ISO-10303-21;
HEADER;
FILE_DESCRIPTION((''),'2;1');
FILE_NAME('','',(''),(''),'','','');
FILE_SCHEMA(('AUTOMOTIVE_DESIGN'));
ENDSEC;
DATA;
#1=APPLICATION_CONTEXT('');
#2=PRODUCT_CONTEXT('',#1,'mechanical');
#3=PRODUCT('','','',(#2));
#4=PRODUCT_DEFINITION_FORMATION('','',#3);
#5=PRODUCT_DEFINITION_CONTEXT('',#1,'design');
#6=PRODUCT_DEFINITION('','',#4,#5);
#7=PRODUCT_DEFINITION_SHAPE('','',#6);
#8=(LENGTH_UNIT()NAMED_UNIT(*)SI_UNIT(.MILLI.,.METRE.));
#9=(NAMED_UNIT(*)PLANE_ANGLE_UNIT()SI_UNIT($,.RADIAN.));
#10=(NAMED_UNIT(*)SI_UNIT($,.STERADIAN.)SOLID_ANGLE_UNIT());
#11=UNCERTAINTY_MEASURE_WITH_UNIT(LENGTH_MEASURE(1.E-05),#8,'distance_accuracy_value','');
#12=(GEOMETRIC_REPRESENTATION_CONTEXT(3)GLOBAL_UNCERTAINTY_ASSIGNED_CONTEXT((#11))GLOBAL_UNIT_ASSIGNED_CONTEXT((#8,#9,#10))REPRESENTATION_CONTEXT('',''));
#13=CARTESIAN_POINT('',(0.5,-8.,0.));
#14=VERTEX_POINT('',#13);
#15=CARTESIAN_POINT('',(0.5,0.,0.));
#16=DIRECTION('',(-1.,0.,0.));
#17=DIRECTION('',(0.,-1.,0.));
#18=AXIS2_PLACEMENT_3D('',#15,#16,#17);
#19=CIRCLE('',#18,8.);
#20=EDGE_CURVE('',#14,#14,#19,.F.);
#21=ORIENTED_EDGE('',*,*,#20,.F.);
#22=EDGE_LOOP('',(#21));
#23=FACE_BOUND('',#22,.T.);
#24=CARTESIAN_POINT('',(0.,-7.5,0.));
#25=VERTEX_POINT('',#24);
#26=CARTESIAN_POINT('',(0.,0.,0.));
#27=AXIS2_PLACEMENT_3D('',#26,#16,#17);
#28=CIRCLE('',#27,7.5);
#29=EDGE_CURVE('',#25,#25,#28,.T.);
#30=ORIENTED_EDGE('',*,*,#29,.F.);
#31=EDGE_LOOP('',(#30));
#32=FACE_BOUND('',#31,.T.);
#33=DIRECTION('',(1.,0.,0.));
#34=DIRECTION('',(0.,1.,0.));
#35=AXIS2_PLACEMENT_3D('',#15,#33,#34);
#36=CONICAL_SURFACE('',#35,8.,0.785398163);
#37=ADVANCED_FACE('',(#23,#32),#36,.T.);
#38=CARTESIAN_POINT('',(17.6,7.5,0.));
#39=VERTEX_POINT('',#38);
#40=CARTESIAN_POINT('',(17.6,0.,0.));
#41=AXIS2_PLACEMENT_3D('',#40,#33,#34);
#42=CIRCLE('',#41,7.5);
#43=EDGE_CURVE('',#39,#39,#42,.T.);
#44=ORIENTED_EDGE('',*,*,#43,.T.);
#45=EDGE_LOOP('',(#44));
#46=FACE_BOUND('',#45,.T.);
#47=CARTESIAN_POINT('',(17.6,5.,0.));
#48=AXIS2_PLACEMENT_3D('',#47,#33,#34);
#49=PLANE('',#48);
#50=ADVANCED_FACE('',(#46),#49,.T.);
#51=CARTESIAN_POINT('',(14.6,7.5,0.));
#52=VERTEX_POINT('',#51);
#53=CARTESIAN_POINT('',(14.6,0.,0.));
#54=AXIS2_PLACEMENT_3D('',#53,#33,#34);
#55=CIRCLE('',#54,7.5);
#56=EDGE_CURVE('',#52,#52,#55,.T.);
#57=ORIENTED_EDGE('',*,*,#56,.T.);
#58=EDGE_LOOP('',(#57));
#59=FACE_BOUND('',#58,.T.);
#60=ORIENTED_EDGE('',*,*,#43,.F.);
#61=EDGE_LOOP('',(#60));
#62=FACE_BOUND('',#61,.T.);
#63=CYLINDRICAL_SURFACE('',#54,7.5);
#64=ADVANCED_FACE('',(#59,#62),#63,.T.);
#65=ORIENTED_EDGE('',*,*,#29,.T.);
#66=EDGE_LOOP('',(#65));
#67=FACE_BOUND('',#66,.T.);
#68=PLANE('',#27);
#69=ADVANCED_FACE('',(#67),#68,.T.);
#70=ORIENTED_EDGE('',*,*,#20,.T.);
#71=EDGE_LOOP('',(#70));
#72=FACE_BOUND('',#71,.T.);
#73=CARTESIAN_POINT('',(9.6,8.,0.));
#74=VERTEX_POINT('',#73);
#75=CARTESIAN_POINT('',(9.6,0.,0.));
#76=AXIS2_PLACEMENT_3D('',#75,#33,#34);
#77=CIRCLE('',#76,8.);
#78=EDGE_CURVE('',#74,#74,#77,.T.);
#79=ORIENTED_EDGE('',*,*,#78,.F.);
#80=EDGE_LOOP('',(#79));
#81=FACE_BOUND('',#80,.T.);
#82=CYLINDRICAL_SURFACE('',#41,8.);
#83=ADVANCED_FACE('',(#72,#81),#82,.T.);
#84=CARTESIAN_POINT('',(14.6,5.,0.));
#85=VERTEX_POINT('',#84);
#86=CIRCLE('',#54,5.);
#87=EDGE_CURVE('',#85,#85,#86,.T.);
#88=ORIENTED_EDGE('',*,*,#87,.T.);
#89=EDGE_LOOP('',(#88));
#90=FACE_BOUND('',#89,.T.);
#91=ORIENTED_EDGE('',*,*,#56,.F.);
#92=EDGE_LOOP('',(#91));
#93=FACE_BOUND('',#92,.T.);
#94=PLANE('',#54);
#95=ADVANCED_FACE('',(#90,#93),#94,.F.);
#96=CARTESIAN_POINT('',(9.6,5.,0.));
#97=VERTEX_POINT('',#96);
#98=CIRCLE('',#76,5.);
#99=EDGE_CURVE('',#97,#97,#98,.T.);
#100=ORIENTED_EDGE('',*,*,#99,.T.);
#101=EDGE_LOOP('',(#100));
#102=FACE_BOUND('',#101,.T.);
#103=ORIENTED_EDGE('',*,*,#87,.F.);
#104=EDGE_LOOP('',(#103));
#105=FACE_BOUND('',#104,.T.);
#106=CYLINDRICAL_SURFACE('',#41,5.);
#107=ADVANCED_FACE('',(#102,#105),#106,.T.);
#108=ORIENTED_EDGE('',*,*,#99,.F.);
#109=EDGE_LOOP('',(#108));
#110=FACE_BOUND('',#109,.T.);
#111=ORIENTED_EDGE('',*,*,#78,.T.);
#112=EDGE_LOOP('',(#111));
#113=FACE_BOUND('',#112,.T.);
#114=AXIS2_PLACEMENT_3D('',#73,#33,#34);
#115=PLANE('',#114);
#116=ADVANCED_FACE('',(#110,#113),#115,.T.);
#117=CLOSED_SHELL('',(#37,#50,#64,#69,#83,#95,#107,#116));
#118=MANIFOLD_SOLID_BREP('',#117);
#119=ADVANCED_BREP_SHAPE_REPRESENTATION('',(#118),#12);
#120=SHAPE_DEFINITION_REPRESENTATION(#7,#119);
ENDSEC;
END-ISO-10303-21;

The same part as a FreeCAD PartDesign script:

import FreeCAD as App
import Part
import Sketcher

V = App.Vector


def edges_at(feature, points):
    """Names of the edges that pass closest to the given points."""
    edges = feature.Shape.Edges
    near = lambda p: min(range(len(edges)), key=lambda i: edges[i].distToShape(Part.Vertex(*p))[0])
    return sorted({f"Edge{near(p) + 1}" for p in points})


def add_polygon(sketch, points):
    """Adds a closed chain of lines whose ends are joined by coincident constraints."""
    first, n = sketch.GeometryCount, len(points)
    for a, b in zip(points, points[1:] + points[:1]):
        sketch.addGeometry(Part.LineSegment(App.Vector(*a, 0), App.Vector(*b, 0)), False)
    for i in range(n):
        sketch.addConstraint(Sketcher.Constraint("Coincident", first + i, 2, first + (i + 1) % n, 1))

doc = App.newDocument("Part")
body = doc.addObject("PartDesign::Body", "Body")

sketch1 = doc.addObject("Sketcher::SketchObject", "Sketch")
body.addObject(sketch1)
sketch1.AttachmentSupport = (doc.XY_Plane, [""])
sketch1.MapMode = "FlatFace"
add_polygon(sketch1, [(0, 8), (0, 0), (17.6, 0), (17.6, 5), (9.6, 5), (9.6, 8)])
sketch1.addConstraint([
    Sketcher.Constraint("Vertical", 0),
    Sketcher.Constraint("Horizontal", 1),
    Sketcher.Constraint("Vertical", 2),
    Sketcher.Constraint("Horizontal", 3),
    Sketcher.Constraint("Vertical", 4),
    Sketcher.Constraint("Horizontal", 5),
    Sketcher.Constraint("Coincident", 0, 2, -1, 1),
    Sketcher.Constraint("Equal", 3, 0),
    Sketcher.Constraint("DistanceX", 3, 2, 3, 1, 8.0),
    Sketcher.Constraint("DistanceY", 2, 1, 2, 2, 5.0),
    Sketcher.Constraint("DistanceX", 1, 1, 1, 2, 17.6),
])
revolution = doc.addObject("PartDesign::Revolution", "Revolution")
body.addObject(revolution)
revolution.Profile = sketch1
revolution.ReferenceAxis = (sketch1, ["H_Axis"])
revolution.Angle = 360
doc.recompute()

chamfer = doc.addObject("PartDesign::Chamfer", "Chamfer")
body.addObject(chamfer)
chamfer.Base = (revolution, edges_at(revolution, [(0, -8, 0)]))
chamfer.Size = 0.5

sketch2 = doc.addObject("Sketcher::SketchObject", "Sketch001")
body.addObject(sketch2)
sketch2.AttachmentSupport = (doc.YZ_Plane, [""])
sketch2.MapMode = "FlatFace"
sketch2.AttachmentOffset = App.Placement(V(0, 0, 17.6), App.Rotation())
sketch2.addGeometry([
    Part.Circle(V(0, 0, 0), V(0, 0, 1), 8),
    Part.Circle(V(0, 0, 0), V(0, 0, 1), 5),
], False)
sketch2.addConstraint([
    Sketcher.Constraint("Coincident", 0, 3, -1, 1),
    Sketcher.Constraint("Coincident", 1, 3, -1, 1),
    Sketcher.Constraint("Diameter", 0, 15.0),
    Sketcher.Constraint("Diameter", 1, 10.0),
])
pad1 = doc.addObject("PartDesign::Pad", "Pad")
body.addObject(pad1)
pad1.Profile = sketch2
pad1.Length = 3
pad1.Reversed = True

doc.recompute()
